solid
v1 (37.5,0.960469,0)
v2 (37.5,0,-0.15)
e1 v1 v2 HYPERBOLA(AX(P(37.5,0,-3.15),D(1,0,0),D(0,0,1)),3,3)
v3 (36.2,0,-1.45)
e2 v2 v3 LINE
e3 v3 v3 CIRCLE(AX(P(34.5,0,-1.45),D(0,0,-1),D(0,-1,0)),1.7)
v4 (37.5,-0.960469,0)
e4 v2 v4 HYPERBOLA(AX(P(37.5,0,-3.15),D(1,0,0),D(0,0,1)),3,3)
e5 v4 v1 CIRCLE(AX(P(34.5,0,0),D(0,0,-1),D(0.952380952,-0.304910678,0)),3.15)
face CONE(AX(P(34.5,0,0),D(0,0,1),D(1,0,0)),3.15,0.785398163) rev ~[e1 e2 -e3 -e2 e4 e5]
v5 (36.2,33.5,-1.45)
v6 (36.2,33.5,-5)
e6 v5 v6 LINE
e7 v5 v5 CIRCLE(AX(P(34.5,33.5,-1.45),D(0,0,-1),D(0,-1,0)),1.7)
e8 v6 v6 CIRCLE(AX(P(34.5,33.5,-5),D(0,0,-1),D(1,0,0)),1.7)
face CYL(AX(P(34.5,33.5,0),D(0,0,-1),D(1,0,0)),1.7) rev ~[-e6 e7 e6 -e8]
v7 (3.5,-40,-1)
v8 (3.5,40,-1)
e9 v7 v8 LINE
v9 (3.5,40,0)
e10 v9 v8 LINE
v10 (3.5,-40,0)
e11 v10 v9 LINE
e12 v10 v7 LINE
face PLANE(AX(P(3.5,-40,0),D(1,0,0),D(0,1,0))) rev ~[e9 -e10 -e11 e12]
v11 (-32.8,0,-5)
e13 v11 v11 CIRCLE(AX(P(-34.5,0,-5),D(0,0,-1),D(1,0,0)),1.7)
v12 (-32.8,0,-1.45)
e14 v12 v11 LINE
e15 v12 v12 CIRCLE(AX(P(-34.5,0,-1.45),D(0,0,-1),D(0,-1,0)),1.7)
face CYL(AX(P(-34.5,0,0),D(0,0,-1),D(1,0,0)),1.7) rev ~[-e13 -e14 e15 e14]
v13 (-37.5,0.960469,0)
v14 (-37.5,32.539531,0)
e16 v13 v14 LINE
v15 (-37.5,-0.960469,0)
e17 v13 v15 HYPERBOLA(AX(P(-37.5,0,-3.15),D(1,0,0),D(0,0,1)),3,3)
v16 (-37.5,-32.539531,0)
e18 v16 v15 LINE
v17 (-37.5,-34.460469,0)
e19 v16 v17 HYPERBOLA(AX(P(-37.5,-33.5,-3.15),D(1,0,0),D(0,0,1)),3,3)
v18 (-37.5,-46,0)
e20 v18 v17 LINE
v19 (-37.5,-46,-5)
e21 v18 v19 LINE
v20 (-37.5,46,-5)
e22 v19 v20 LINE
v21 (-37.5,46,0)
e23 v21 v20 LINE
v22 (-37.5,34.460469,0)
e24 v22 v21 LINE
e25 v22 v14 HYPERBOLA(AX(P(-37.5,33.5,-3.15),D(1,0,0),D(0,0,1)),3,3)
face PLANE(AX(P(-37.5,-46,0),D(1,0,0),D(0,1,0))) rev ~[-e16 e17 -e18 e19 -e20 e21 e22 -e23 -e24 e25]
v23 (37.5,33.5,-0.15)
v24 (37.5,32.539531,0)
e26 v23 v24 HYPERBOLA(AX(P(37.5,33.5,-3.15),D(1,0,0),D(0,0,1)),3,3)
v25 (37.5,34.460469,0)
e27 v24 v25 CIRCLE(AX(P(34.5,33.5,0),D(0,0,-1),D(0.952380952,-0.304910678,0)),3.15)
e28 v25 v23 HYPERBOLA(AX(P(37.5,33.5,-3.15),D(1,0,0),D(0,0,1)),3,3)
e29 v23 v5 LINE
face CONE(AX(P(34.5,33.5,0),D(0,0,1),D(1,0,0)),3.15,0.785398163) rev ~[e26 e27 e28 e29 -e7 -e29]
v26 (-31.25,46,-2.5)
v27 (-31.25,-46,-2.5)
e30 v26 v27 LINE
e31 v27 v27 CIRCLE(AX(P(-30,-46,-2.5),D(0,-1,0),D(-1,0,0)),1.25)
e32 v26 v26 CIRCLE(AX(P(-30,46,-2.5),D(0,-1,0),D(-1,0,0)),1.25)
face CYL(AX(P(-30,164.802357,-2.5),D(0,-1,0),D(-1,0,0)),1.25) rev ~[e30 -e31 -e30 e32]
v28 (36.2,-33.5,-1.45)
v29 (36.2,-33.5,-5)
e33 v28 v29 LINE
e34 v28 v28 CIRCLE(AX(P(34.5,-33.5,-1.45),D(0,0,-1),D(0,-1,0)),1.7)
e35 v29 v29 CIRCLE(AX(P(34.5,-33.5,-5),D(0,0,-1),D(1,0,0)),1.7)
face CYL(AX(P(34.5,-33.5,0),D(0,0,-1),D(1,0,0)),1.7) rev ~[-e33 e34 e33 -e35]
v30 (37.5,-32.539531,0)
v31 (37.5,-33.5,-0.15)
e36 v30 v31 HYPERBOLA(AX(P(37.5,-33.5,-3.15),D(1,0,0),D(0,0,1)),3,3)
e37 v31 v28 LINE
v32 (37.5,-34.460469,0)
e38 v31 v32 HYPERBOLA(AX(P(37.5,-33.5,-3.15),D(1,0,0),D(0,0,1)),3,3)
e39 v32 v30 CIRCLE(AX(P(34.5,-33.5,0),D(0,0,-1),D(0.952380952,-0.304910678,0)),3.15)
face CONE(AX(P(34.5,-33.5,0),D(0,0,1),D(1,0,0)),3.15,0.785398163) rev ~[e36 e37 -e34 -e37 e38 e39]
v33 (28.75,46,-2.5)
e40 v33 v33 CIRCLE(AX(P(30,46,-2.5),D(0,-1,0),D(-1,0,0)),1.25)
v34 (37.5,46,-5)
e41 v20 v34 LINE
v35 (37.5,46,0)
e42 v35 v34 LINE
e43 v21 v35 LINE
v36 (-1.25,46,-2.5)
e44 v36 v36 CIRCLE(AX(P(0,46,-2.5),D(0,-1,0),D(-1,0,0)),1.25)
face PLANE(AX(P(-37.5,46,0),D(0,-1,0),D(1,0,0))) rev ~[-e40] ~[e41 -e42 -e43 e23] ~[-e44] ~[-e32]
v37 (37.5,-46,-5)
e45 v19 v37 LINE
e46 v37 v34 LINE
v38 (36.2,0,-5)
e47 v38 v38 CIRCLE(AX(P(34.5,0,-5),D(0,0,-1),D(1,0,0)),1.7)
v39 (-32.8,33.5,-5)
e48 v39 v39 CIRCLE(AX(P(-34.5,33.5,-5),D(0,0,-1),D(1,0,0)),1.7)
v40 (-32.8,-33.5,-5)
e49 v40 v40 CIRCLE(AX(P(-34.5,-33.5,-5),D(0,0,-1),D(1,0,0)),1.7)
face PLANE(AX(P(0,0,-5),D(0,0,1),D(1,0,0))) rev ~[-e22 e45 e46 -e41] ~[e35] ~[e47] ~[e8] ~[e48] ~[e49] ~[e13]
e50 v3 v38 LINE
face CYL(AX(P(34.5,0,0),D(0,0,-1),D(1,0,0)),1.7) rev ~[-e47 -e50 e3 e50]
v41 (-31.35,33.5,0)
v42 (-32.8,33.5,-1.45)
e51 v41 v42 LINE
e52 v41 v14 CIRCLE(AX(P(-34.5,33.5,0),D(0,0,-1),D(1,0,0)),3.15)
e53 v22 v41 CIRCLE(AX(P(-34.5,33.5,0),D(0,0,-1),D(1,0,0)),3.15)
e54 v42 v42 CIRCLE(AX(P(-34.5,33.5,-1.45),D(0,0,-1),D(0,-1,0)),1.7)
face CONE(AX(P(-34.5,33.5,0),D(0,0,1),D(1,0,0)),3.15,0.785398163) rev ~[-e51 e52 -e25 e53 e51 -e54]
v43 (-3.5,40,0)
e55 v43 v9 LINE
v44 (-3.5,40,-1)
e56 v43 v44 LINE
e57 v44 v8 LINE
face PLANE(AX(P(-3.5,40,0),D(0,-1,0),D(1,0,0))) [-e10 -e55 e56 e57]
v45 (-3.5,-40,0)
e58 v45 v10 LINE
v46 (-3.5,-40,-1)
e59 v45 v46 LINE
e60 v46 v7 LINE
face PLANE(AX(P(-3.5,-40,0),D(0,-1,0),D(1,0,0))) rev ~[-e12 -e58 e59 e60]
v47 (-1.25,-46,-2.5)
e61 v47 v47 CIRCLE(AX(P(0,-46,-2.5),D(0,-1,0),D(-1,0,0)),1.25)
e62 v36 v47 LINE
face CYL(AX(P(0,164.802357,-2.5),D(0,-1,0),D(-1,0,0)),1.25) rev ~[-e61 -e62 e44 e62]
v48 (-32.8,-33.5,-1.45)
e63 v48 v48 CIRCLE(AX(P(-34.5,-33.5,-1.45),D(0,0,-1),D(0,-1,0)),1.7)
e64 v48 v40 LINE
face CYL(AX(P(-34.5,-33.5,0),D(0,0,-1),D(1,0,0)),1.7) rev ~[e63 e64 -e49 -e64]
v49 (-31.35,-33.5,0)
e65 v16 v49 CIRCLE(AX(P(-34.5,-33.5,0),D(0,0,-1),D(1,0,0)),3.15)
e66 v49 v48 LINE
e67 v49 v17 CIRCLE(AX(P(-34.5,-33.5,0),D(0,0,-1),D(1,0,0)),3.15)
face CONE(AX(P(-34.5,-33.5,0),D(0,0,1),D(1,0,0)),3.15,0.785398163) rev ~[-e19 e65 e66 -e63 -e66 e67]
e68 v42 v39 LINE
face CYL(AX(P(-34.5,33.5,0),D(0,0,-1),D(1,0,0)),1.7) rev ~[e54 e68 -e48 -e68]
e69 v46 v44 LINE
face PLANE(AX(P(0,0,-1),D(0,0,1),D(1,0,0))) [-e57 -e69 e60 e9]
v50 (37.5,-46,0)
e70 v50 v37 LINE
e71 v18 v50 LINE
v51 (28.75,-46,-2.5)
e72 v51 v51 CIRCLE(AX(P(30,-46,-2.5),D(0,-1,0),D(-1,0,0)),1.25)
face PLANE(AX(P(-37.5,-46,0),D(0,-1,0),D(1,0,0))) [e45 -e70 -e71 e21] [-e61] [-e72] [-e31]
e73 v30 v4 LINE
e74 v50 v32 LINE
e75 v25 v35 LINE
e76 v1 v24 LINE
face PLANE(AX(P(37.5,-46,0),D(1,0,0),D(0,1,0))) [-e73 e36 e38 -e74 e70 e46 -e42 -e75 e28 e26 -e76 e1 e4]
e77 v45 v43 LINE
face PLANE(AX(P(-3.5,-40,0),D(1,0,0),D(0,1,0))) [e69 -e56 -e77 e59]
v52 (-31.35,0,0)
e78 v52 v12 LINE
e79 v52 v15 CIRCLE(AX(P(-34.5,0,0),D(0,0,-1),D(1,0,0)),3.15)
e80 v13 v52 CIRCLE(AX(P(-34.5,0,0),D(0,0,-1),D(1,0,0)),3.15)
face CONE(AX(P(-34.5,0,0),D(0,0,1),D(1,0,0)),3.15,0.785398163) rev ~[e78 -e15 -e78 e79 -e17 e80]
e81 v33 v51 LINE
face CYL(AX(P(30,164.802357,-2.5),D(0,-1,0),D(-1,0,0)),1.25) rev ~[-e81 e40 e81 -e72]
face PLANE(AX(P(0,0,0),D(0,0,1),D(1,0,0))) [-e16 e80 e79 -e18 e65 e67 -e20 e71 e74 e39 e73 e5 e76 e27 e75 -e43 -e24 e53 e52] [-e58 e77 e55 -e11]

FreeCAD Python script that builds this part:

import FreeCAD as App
import Part
import Sketcher

V = App.Vector

doc = App.newDocument("Part")
body = doc.addObject("PartDesign::Body", "Body")

# Sketch on XY plane
sketch1 = body.newObject("Sketcher::SketchObject", "Sketch")
sketch1.AttachmentSupport = (doc.getObject("XY_Plane"), [""])
sketch1.MapMode = "FlatFace"
sketch1.addGeometry(Part.LineSegment(V(-38, 46, 0), V(-38, -46, 0)), False)
sketch1.addGeometry(Part.LineSegment(V(-38, -46, 0), V(38, -46, 0)), False)
sketch1.addGeometry(Part.LineSegment(V(38, -46, 0), V(38, 46, 0)), False)
sketch1.addGeometry(Part.LineSegment(V(38, 46, 0), V(-38, 46, 0)), False)
sketch1.addConstraint(Sketcher.Constraint("Coincident", 0, 2, 1, 1))
sketch1.addConstraint(Sketcher.Constraint("Coincident", 1, 2, 2, 1))
sketch1.addConstraint(Sketcher.Constraint("Coincident", 2, 2, 3, 1))
sketch1.addConstraint(Sketcher.Constraint("Coincident", 3, 2, 0, 1))
sketch1.addConstraint(Sketcher.Constraint("Vertical", 0))
sketch1.addConstraint(Sketcher.Constraint("Horizontal", 1))
sketch1.addConstraint(Sketcher.Constraint("Vertical", 2))
sketch1.addConstraint(Sketcher.Constraint("Horizontal", 3))
sketch1.addConstraint(Sketcher.Constraint("Symmetric", 0, 2, 2, 2, -1, 1))
sketch1.addConstraint(Sketcher.Constraint("DistanceX", 1, 1, 1, 2, 75.0))
sketch1.addConstraint(Sketcher.Constraint("DistanceY", 0, 2, 0, 1, 92.0))
pad1 = body.newObject("PartDesign::Pad", "Pad")
pad1.Profile = sketch1
pad1.Length = 5
pad1.Reversed = True

# Sketch on XZ plane
sketch2 = body.newObject("Sketcher::SketchObject", "Sketch001")
sketch2.AttachmentSupport = (doc.getObject("XZ_Plane"), [""])
sketch2.MapMode = "FlatFace"
sketch2.AttachmentOffset = App.Placement(V(0, 0, -46), App.Rotation())
sketch2.addGeometry(Part.Circle(V(30, -2.5, 0), V(0, 0, 1), 1.2), False)
sketch2.addGeometry(Part.Circle(V(-30, -2.5, 0), V(0, 0, 1), 1.2), False)
sketch2.addGeometry(Part.Circle(V(0, -2.5, 0), V(0, 0, 1), 1.2), False)
sketch2.addConstraint(Sketcher.Constraint("Equal", 0, 1))
sketch2.addConstraint(Sketcher.Constraint("Equal", 1, 2))
sketch2.addConstraint(Sketcher.Constraint("Symmetric", 0, 3, 1, 3, -2))
sketch2.addConstraint(Sketcher.Constraint("PointOnObject", 2, 3, -2))
sketch2.addConstraint(Sketcher.Constraint("Horizontal", 1, 3, 2, 3))
sketch2.addConstraint(Sketcher.Constraint("Diameter", 0, 2.5))
sketch2.addConstraint(Sketcher.Constraint("DistanceX", -1, 1, 0, 3, 30.0))
sketch2.addConstraint(Sketcher.Constraint("DistanceY", 0, 3, -1, 1, 2.5))
doc.recompute()
hole = body.newObject("PartDesign::Hole", "Hole")
hole.Profile = sketch2
hole.ThreadType = "None"
hole.Diameter = 2.5
hole.DepthType = "ThroughAll"
hole.Reversed = True

# Sketch on XY plane
sketch3 = body.newObject("Sketcher::SketchObject", "Sketch002")
sketch3.AttachmentSupport = (doc.getObject("XY_Plane"), [""])
sketch3.MapMode = "FlatFace"
sketch3.addGeometry(Part.Circle(V(34.5, 0, 0), V(0, 0, 1), 1.7), False)
sketch3.addGeometry(Part.Circle(V(34.5, 33.5, 0), V(0, 0, 1), 1.7), False)
sketch3.addGeometry(Part.Circle(V(34.5, -33.5, 0), V(0, 0, 1), 1.7), False)
sketch3.addGeometry(Part.Circle(V(-34.5, 33.5, 0), V(0, 0, 1), 1.7), False)
sketch3.addGeometry(Part.Circle(V(-34.5, 0, 0), V(0, 0, 1), 1.7), False)
sketch3.addGeometry(Part.Circle(V(-34.5, -33.5, 0), V(0, 0, 1), 1.7), False)
sketch3.addConstraint(Sketcher.Constraint("Equal", 0, 1))
sketch3.addConstraint(Sketcher.Constraint("Equal", 1, 2))
sketch3.addConstraint(Sketcher.Constraint("Equal", 2, 3))
sketch3.addConstraint(Sketcher.Constraint("Equal", 3, 4))
sketch3.addConstraint(Sketcher.Constraint("Equal", 4, 5))
sketch3.addConstraint(Sketcher.Constraint("Symmetric", 2, 3, 3, 3, -1, 1))
sketch3.addConstraint(Sketcher.Constraint("Symmetric", 0, 3, 4, 3, -1, 1))
sketch3.addConstraint(Sketcher.Constraint("Symmetric", 1, 3, 5, 3, -1, 1))
sketch3.addConstraint(Sketcher.Constraint("Symmetric", 1, 3, 3, 3, -2))
sketch3.addConstraint(Sketcher.Constraint("PointOnObject", 0, 3, -1))
sketch3.addConstraint(Sketcher.Constraint("Vertical", 0, 3, 1, 3))
sketch3.addConstraint(Sketcher.Constraint("Diameter", 0, 3.4))
sketch3.addConstraint(Sketcher.Constraint("DistanceY", 2, 3, 1, 3, 67.0))
sketch3.addConstraint(Sketcher.Constraint("DistanceX", 3, 3, 1, 3, 69.0))
doc.recompute()
hole2 = body.newObject("PartDesign::Hole", "Hole001")
hole2.Profile = sketch3
hole2.ThreadType = "None"
hole2.Diameter = 3.4
hole2.DepthType = "ThroughAll"
hole2.HoleCutType = "Countersink"
hole2.HoleCutDiameter = 6.3
hole2.HoleCutCountersinkAngle = 90

# Sketch on XY plane
sketch4 = body.newObject("Sketcher::SketchObject", "Sketch003")
sketch4.AttachmentSupport = (doc.getObject("XY_Plane"), [""])
sketch4.MapMode = "FlatFace"
sketch4.addGeometry(Part.LineSegment(V(-4, 40, 0), V(-4, -40, 0)), False)
sketch4.addGeometry(Part.LineSegment(V(-4, -40, 0), V(4, -40, 0)), False)
sketch4.addGeometry(Part.LineSegment(V(4, -40, 0), V(4, 40, 0)), False)
sketch4.addGeometry(Part.LineSegment(V(4, 40, 0), V(-4, 40, 0)), False)
sketch4.addConstraint(Sketcher.Constraint("Coincident", 0, 2, 1, 1))
sketch4.addConstraint(Sketcher.Constraint("Coincident", 1, 2, 2, 1))
sketch4.addConstraint(Sketcher.Constraint("Coincident", 2, 2, 3, 1))
sketch4.addConstraint(Sketcher.Constraint("Coincident", 3, 2, 0, 1))
sketch4.addConstraint(Sketcher.Constraint("Vertical", 0))
sketch4.addConstraint(Sketcher.Constraint("Horizontal", 1))
sketch4.addConstraint(Sketcher.Constraint("Vertical", 2))
sketch4.addConstraint(Sketcher.Constraint("Horizontal", 3))
sketch4.addConstraint(Sketcher.Constraint("Symmetric", 0, 2, 2, 2, -1, 1))
sketch4.addConstraint(Sketcher.Constraint("DistanceX", 1, 1, 1, 2, 7.0))
sketch4.addConstraint(Sketcher.Constraint("DistanceY", 0, 2, 0, 1, 80.0))
pocket1 = body.newObject("PartDesign::Pocket", "Pocket")
pocket1.Profile = sketch4
pocket1.Length = 1

doc.recompute()
